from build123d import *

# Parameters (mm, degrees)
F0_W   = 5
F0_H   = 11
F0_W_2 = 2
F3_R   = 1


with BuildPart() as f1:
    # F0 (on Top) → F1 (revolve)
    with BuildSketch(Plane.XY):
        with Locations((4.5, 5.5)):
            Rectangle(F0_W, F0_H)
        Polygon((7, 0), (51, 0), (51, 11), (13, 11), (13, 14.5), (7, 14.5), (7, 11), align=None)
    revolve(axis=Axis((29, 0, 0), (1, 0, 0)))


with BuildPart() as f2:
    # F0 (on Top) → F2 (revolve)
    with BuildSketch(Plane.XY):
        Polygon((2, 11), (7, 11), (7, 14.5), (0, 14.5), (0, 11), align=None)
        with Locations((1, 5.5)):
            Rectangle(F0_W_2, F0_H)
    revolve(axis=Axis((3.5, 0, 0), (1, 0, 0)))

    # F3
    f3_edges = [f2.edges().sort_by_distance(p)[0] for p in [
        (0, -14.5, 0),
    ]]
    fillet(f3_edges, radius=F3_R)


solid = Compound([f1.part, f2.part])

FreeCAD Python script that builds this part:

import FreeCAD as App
import Part
import Sketcher
Q = App.Units.Quantity


def edges_at(feature, points):
    """Names of the edges that pass closest to the given points."""
    edges = feature.Shape.Edges
    near = lambda p: min(range(len(edges)), key=lambda i: edges[i].distToShape(Part.Vertex(*p))[0])
    return sorted({f"Edge{near(p) + 1}" for p in points})

doc = App.newDocument("Part")
body = doc.addObject("PartDesign::Body", "Body")

# Sketch on XY plane
sketch1 = doc.addObject("Sketcher::SketchObject", "Sketch")
body.addObject(sketch1)
sketch1.AttachmentSupport = (doc.XY_Plane, [""])
sketch1.MapMode = "FlatFace"
sketch1.addGeometry([
    Part.LineSegment(App.Vector(2, 11, 0), App.Vector(2, 0, 0)),  # 0
    Part.LineSegment(App.Vector(2, 0, 0), App.Vector(51, 0, 0)),  # 1
    Part.LineSegment(App.Vector(51, 0, 0), App.Vector(51, 11, 0)),  # 2
    Part.LineSegment(App.Vector(51, 11, 0), App.Vector(13, 11, 0)),  # 3
    Part.LineSegment(App.Vector(13, 11, 0), App.Vector(13, 14.5, 0)),  # 4
    Part.LineSegment(App.Vector(13, 14.5, 0), App.Vector(7, 14.5, 0)),  # 5
    Part.LineSegment(App.Vector(7, 14.5, 0), App.Vector(7, 11, 0)),  # 6
    Part.LineSegment(App.Vector(7, 11, 0), App.Vector(2, 11, 0)),  # 7
], False)
sketch1.addConstraint([
    Sketcher.Constraint("Coincident", 0, 2, 1, 1),
    Sketcher.Constraint("Coincident", 1, 2, 2, 1),
    Sketcher.Constraint("Coincident", 2, 2, 3, 1),
    Sketcher.Constraint("Coincident", 3, 2, 4, 1),
    Sketcher.Constraint("Coincident", 4, 2, 5, 1),
    Sketcher.Constraint("Coincident", 5, 2, 6, 1),
    Sketcher.Constraint("Coincident", 6, 2, 7, 1),
    Sketcher.Constraint("Coincident", 7, 2, 0, 1),
    Sketcher.Constraint("Vertical", 0),
    Sketcher.Constraint("Horizontal", 1),
    Sketcher.Constraint("Vertical", 2),
    Sketcher.Constraint("Horizontal", 3),
    Sketcher.Constraint("Vertical", 4),
    Sketcher.Constraint("Horizontal", 5),
    Sketcher.Constraint("Vertical", 6),
    Sketcher.Constraint("Horizontal", 7),
    Sketcher.Constraint("PointOnObject", 0, 2, -1),
    Sketcher.Constraint("Horizontal", 3, 2, 6, 2),
    Sketcher.Constraint("DistanceX", 1, 1, 1, 2, Q("49 mm")),
    Sketcher.Constraint("DistanceX", 3, 2, 3, 1, Q("38 mm")),
    Sketcher.Constraint("DistanceX", 5, 2, 5, 1, Q("6 mm")),
    Sketcher.Constraint("DistanceY", 0, 2, 0, 1, Q("11 mm")),
    Sketcher.Constraint("DistanceY", 4, 1, 4, 2, Q("3.5 mm")),
    Sketcher.Constraint("DistanceX", -1, 1, 0, 2, Q("2 mm")),
])
revolution = doc.addObject("PartDesign::Revolution", "Revolution")
body.addObject(revolution)
revolution.Profile = sketch1
revolution.ReferenceAxis = (sketch1, ["H_Axis"])
revolution.Angle = 360
body2 = doc.addObject("PartDesign::Body", "Body001")

# Sketch on XY plane
sketch2 = doc.addObject("Sketcher::SketchObject", "Sketch001")
body2.addObject(sketch2)
sketch2.AttachmentSupport = (doc.getObject("XY_Plane001"), [""])
sketch2.MapMode = "FlatFace"
sketch2.addGeometry([
    Part.LineSegment(App.Vector(7, 11, 0), App.Vector(7, 14.5, 0)),  # 0
    Part.LineSegment(App.Vector(7, 14.5, 0), App.Vector(0, 14.5, 0)),  # 1
    Part.LineSegment(App.Vector(0, 14.5, 0), App.Vector(0, 0, 0)),  # 2
    Part.LineSegment(App.Vector(0, 0, 0), App.Vector(2, 0, 0)),  # 3
    Part.LineSegment(App.Vector(2, 0, 0), App.Vector(2, 11, 0)),  # 4
    Part.LineSegment(App.Vector(2, 11, 0), App.Vector(7, 11, 0)),  # 5
], False)
sketch2.addConstraint([
    Sketcher.Constraint("Coincident", 0, 2, 1, 1),
    Sketcher.Constraint("Coincident", 1, 2, 2, 1),
    Sketcher.Constraint("Coincident", 2, 2, 3, 1),
    Sketcher.Constraint("Coincident", 3, 2, 4, 1),
    Sketcher.Constraint("Coincident", 4, 2, 5, 1),
    Sketcher.Constraint("Coincident", 5, 2, 0, 1),
    Sketcher.Constraint("Vertical", 0),
    Sketcher.Constraint("Horizontal", 1),
    Sketcher.Constraint("Vertical", 2),
    Sketcher.Constraint("Horizontal", 3),
    Sketcher.Constraint("Vertical", 4),
    Sketcher.Constraint("Horizontal", 5),
    Sketcher.Constraint("Coincident", 2, 2, -1, 1),
    Sketcher.Constraint("DistanceX", 1, 2, 1, 1, Q("7 mm")),
    Sketcher.Constraint("DistanceX", 3, 1, 3, 2, Q("2 mm")),
    Sketcher.Constraint("DistanceY", 4, 1, 4, 2, Q("11 mm")),
    Sketcher.Constraint("DistanceY", 0, 1, 0, 2, Q("3.5 mm")),
])
revolution2 = doc.addObject("PartDesign::Revolution", "Revolution001")
body2.addObject(revolution2)
revolution2.Profile = sketch2
revolution2.ReferenceAxis = (sketch2, ["H_Axis"])
revolution2.Angle = 360
doc.recompute()

fillet = doc.addObject("PartDesign::Fillet", "Fillet")
body2.addObject(fillet)
fillet.Base = (revolution2, edges_at(revolution2, [(0, -14.5, 0)]))
fillet.Radius = 1

doc.recompute()
